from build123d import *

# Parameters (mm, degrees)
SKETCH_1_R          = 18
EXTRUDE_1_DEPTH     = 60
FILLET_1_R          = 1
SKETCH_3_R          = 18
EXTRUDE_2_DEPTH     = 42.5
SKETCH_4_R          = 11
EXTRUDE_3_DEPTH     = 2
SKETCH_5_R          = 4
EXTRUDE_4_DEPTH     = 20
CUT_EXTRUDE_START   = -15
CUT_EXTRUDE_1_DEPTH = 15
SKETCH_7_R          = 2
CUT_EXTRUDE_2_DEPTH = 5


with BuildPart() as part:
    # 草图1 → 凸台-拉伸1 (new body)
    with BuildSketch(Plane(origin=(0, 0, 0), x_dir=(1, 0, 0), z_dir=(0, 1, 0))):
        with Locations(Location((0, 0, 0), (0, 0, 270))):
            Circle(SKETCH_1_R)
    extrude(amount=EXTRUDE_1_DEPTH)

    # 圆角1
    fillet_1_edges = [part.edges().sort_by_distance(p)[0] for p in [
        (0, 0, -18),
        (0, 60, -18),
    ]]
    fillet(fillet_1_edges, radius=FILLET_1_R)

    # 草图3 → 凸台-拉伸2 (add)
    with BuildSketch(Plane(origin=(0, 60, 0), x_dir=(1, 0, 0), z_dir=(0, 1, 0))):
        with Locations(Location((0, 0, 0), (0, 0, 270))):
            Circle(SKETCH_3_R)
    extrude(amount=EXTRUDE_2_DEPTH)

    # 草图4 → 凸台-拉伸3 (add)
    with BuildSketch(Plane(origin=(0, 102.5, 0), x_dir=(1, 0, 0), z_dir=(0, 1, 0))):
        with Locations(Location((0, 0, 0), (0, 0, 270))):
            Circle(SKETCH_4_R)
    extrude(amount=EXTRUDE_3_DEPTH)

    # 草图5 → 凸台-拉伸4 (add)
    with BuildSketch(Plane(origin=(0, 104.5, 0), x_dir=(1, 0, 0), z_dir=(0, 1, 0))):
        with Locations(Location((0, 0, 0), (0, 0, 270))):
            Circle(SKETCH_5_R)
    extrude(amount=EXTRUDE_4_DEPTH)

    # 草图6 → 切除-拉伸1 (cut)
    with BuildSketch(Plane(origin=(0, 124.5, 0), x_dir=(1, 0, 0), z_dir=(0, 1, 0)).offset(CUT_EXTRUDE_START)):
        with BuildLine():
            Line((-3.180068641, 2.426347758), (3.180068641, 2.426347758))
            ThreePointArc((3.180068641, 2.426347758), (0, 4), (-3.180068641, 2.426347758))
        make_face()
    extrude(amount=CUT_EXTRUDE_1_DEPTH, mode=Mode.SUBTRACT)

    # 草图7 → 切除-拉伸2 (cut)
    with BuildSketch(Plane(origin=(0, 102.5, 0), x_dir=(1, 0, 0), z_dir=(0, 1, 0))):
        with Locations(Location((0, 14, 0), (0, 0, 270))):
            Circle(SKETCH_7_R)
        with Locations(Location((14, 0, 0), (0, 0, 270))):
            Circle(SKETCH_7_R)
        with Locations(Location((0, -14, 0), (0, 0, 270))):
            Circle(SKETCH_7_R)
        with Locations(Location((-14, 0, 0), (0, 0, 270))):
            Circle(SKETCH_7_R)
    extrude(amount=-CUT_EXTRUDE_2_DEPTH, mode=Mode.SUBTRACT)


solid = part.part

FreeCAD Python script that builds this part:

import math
import FreeCAD as App
import Part
import Sketcher
from FreeCAD import Vector
Q = App.Units.Quantity


def edges_at(feature, points):
    """Names of the edges that pass closest to the given points."""
    edges = feature.Shape.Edges
    near = lambda p: min(range(len(edges)), key=lambda i: edges[i].distToShape(Part.Vertex(*p))[0])
    return sorted({f"Edge{near(p) + 1}" for p in points})

doc = App.newDocument("Part")
body = doc.addObject("PartDesign::Body", "Body")

# Sketch on XZ plane
sketch1 = body.newObject("Sketcher::SketchObject", "Sketch")
sketch1.AttachmentSupport = (doc.getObject("XZ_Plane"), [""])
sketch1.MapMode = "FlatFace"
sketch1.addGeometry(Part.Circle(Vector(0, 0, 0), Vector(0, 0, 1), 18), False)
sketch1.addConstraint(Sketcher.Constraint("Coincident", 0, 3, -1, 1))
sketch1.addConstraint(Sketcher.Constraint("Diameter", 0, Q("36 mm")))
pad1 = body.newObject("PartDesign::Pad", "Pad")
pad1.Profile = sketch1
pad1.Length = 60
pad1.Reversed = True
doc.recompute()

fillet = body.newObject("PartDesign::Fillet", "Fillet")
fillet.Base = (pad1, edges_at(pad1, [(0, 0, -18), (0, 60, -18)]))
fillet.Radius = 1

# Sketch on XZ plane
sketch2 = body.newObject("Sketcher::SketchObject", "Sketch001")
sketch2.AttachmentSupport = (doc.getObject("XZ_Plane"), [""])
sketch2.MapMode = "FlatFace"
sketch2.AttachmentOffset = App.Placement(Vector(0, 0, -60), App.Rotation())
sketch2.addGeometry(Part.Circle(Vector(0, 0, 0), Vector(0, 0, 1), 18), False)
sketch2.addConstraint(Sketcher.Constraint("Coincident", 0, 3, -1, 1))
sketch2.addConstraint(Sketcher.Constraint("Diameter", 0, Q("36 mm")))
pad2 = body.newObject("PartDesign::Pad", "Pad001")
pad2.Profile = sketch2
pad2.Length = 42.5
pad2.Reversed = True

# Sketch on XZ plane
sketch3 = body.newObject("Sketcher::SketchObject", "Sketch002")
sketch3.AttachmentSupport = (doc.getObject("XZ_Plane"), [""])
sketch3.MapMode = "FlatFace"
sketch3.AttachmentOffset = App.Placement(Vector(0, 0, -102.5), App.Rotation())
sketch3.addGeometry(Part.Circle(Vector(0, 0, 0), Vector(0, 0, 1), 11), False)
sketch3.addConstraint(Sketcher.Constraint("Coincident", 0, 3, -1, 1))
sketch3.addConstraint(Sketcher.Constraint("Diameter", 0, Q("22 mm")))
pad3 = body.newObject("PartDesign::Pad", "Pad002")
pad3.Profile = sketch3
pad3.Length = 2
pad3.Reversed = True

# Sketch on XZ plane
sketch4 = body.newObject("Sketcher::SketchObject", "Sketch003")
sketch4.AttachmentSupport = (doc.getObject("XZ_Plane"), [""])
sketch4.MapMode = "FlatFace"
sketch4.AttachmentOffset = App.Placement(Vector(0, 0, -104.5), App.Rotation())
sketch4.addGeometry(Part.Circle(Vector(0, 0, 0), Vector(0, 0, 1), 4), False)
sketch4.addConstraint(Sketcher.Constraint("Coincident", 0, 3, -1, 1))
sketch4.addConstraint(Sketcher.Constraint("Diameter", 0, Q("8 mm")))
pad4 = body.newObject("PartDesign::Pad", "Pad003")
pad4.Profile = sketch4
pad4.Length = 20
pad4.Reversed = True

# Sketch on XZ plane
sketch5 = body.newObject("Sketcher::SketchObject", "Sketch004")
sketch5.AttachmentSupport = (doc.getObject("XZ_Plane"), [""])
sketch5.MapMode = "FlatFace"
sketch5.AttachmentOffset = App.Placement(Vector(0, 0, -109.5), App.Rotation())
sketch5.addGeometry(Part.LineSegment(Vector(-3.2, -2.4, 0), Vector(3.2, -2.4, 0)), False)
sketch5.addGeometry(Part.ArcOfCircle(Part.Circle(Vector(0, 0, 0), Vector(0, 0, 1), 4), math.radians(-143), math.radians(-37)), False)
sketch5.addConstraint(Sketcher.Constraint("Coincident", 0, 1, 1, 1))
sketch5.addConstraint(Sketcher.Constraint("Coincident", 1, 2, 0, 2))
sketch5.addConstraint(Sketcher.Constraint("Horizontal", 0))
sketch5.addConstraint(Sketcher.Constraint("Coincident", 1, 3, -1, 1))
sketch5.addConstraint(Sketcher.Constraint("Radius", 1, Q("4 mm")))
sketch5.addConstraint(Sketcher.Constraint("DistanceX", 0, 1, 0, 2, Q("6.360137 mm")))
pocket1 = body.newObject("PartDesign::Pocket", "Pocket")
pocket1.Profile = sketch5
pocket1.Length = 15

# Sketch on XZ plane
sketch6 = body.newObject("Sketcher::SketchObject", "Sketch005")
sketch6.AttachmentSupport = (doc.getObject("XZ_Plane"), [""])
sketch6.MapMode = "FlatFace"
sketch6.AttachmentOffset = App.Placement(Vector(0, 0, -102.5), App.Rotation())
sketch6.addGeometry(Part.Circle(Vector(0, -14, 0), Vector(0, 0, 1), 2), False)
sketch6.addGeometry(Part.Circle(Vector(14, 0, 0), Vector(0, 0, 1), 2), False)
sketch6.addGeometry(Part.Circle(Vector(0, 14, 0), Vector(0, 0, 1), 2), False)
sketch6.addGeometry(Part.Circle(Vector(-14, 0, 0), Vector(0, 0, 1), 2), False)
sketch6.addConstraint(Sketcher.Constraint("Equal", 0, 1))
sketch6.addConstraint(Sketcher.Constraint("Equal", 1, 2))
sketch6.addConstraint(Sketcher.Constraint("Equal", 2, 3))
sketch6.addConstraint(Sketcher.Constraint("Symmetric", 0, 3, 2, 3, -1, 1))
sketch6.addConstraint(Sketcher.Constraint("Symmetric", 1, 3, 3, 3, -1, 1))
sketch6.addConstraint(Sketcher.Constraint("PointOnObject", 0, 3, -2))
sketch6.addConstraint(Sketcher.Constraint("PointOnObject", 1, 3, -1))
sketch6.addConstraint(Sketcher.Constraint("Diameter", 0, Q("4 mm")))
sketch6.addConstraint(Sketcher.Constraint("DistanceY", 0, 3, -1, 1, Q("14 mm")))
sketch6.addConstraint(Sketcher.Constraint("DistanceX", -1, 1, 1, 3, Q("14 mm")))
pocket2 = body.newObject("PartDesign::Pocket", "Pocket001")
pocket2.Profile = sketch6
pocket2.Length = 5
pocket2.Reversed = True

doc.recompute()
